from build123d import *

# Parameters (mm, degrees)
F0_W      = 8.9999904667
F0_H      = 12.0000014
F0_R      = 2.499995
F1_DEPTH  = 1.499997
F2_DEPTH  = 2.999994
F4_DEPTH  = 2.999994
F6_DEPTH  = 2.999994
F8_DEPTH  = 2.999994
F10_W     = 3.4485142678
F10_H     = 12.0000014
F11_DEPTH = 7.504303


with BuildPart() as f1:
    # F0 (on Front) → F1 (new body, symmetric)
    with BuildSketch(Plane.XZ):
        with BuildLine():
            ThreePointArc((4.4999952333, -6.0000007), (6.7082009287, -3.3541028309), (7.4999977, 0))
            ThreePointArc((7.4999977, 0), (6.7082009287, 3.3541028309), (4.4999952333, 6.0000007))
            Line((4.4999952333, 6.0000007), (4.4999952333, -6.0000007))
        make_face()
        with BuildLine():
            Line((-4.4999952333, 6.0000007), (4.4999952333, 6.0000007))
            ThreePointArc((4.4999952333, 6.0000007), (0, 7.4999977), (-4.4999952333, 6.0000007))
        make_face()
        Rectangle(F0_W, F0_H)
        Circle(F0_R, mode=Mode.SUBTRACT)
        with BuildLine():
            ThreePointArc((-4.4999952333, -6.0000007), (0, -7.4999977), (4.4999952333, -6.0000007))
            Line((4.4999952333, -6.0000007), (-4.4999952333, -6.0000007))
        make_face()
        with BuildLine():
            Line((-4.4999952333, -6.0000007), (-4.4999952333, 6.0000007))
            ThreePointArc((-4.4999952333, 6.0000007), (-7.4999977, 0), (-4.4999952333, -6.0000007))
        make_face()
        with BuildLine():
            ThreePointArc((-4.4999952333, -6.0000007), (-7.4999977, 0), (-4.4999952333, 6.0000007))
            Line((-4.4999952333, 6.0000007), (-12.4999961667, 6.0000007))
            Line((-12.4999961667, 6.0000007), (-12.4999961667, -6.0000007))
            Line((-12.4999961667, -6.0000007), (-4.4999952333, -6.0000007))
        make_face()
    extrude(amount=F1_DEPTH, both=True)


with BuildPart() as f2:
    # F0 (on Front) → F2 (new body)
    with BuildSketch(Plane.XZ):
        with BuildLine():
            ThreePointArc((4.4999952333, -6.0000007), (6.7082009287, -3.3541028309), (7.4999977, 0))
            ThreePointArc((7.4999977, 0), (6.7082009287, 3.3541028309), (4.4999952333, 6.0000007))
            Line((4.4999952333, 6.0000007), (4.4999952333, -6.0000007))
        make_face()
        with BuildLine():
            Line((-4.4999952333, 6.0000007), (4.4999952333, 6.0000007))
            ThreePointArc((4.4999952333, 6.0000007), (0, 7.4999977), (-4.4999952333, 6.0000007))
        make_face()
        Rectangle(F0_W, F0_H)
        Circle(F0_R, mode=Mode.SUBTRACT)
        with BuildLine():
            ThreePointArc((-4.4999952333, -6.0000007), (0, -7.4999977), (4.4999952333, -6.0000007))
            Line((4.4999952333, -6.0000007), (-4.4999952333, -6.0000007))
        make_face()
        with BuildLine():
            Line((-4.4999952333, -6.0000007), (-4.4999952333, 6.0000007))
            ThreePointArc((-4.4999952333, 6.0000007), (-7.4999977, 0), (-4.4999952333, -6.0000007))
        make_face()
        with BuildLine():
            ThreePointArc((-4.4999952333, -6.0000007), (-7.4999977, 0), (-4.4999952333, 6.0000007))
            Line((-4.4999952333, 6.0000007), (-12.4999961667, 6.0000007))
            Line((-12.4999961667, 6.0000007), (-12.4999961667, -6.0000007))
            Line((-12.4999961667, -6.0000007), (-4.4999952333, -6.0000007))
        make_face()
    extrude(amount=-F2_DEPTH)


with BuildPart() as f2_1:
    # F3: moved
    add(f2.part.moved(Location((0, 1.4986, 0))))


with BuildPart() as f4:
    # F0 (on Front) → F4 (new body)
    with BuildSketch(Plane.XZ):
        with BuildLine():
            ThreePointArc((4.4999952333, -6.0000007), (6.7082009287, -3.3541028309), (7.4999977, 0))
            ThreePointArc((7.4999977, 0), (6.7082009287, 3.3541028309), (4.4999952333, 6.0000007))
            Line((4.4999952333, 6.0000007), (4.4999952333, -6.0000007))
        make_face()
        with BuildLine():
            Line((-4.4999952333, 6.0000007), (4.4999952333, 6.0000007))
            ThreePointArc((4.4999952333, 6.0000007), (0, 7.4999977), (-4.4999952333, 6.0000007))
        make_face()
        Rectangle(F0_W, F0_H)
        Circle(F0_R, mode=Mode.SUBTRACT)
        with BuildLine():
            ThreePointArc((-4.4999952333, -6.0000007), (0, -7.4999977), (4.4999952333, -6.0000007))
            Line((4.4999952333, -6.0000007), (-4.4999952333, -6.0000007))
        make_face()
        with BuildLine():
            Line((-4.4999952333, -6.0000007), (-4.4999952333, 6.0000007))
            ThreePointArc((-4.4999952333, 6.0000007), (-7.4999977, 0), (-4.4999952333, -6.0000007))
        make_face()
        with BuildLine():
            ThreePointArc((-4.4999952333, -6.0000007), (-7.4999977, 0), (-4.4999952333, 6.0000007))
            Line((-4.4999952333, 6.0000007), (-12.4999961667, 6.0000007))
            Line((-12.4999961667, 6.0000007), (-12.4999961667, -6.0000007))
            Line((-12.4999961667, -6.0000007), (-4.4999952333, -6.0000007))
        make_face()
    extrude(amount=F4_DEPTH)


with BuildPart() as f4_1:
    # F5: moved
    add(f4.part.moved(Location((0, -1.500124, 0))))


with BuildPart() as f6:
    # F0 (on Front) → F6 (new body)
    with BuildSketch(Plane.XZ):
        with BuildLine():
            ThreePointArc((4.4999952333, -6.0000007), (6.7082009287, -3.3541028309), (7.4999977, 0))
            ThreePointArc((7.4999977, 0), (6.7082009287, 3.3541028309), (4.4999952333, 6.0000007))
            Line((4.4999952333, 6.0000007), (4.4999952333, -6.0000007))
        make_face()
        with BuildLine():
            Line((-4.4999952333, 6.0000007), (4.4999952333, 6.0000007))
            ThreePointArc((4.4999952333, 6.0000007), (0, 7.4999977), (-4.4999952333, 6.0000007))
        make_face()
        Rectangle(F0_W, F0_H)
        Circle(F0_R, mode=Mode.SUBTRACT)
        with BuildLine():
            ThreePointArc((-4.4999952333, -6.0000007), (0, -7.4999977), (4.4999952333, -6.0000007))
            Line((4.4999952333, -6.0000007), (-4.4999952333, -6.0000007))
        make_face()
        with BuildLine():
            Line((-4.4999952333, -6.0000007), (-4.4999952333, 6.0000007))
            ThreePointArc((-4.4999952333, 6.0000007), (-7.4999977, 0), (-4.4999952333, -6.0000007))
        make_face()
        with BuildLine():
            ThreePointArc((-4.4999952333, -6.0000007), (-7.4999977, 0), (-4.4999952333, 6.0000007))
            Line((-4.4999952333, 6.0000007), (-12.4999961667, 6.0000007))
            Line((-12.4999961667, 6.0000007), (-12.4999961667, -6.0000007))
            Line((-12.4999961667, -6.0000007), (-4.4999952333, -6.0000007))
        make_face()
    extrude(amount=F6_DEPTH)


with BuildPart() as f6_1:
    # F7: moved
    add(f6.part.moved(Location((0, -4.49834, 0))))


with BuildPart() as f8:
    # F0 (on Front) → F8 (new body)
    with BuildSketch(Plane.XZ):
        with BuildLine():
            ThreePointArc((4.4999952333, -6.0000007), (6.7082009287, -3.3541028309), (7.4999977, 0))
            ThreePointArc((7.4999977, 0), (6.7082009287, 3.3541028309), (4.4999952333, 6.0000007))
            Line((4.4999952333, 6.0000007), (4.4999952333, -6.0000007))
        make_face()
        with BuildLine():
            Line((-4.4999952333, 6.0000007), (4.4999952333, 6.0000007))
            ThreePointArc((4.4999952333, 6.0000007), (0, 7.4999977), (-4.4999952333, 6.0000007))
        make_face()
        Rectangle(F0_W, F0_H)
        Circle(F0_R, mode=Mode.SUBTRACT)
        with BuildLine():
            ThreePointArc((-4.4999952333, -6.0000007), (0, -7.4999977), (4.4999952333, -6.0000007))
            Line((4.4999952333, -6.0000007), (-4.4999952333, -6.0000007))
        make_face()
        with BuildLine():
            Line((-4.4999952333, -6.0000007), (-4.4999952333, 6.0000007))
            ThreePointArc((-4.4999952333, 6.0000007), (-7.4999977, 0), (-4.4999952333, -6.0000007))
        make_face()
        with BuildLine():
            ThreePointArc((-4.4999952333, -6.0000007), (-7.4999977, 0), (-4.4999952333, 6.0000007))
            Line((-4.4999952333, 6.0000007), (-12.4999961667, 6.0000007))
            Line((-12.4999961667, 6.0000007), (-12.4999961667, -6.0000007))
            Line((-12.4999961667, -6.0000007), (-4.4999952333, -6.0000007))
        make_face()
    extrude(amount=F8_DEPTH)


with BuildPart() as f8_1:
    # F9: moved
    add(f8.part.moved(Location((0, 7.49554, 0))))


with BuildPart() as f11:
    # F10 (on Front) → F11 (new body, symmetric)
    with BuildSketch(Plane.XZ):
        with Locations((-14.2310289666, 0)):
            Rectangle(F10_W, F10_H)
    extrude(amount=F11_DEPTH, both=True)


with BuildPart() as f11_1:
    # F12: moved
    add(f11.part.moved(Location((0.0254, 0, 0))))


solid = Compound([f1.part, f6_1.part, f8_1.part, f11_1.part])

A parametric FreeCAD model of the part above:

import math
import FreeCAD as App
import Part
import Sketcher
Q = App.Units.Quantity


def add_polygon(sketch, points):
    """Adds a closed chain of lines whose ends are joined by coincident constraints."""
    first, n = sketch.GeometryCount, len(points)
    for a, b in zip(points, points[1:] + points[:1]):
        sketch.addGeometry(Part.LineSegment(App.Vector(*a, 0), App.Vector(*b, 0)), False)
    for i in range(n):
        sketch.addConstraint(Sketcher.Constraint("Coincident", first + i, 2, first + (i + 1) % n, 1))

doc = App.newDocument("Part")
body = doc.addObject("PartDesign::Body", "Body")

# Sketch on XZ plane
sketch1 = body.newObject("Sketcher::SketchObject", "Sketch")
sketch1.AttachmentSupport = (doc.getObject("XZ_Plane"), [""])
sketch1.MapMode = "FlatFace"
sketch1.addGeometry(Part.ArcOfCircle(Part.Circle(App.Vector(0, 0, 0), App.Vector(0, 0, 1), 7.499998), math.radians(-53.130135), math.radians(0)), False)
sketch1.addGeometry(Part.ArcOfCircle(Part.Circle(App.Vector(0, 0, 0), App.Vector(0, 0, 1), 7.499998), math.radians(0), math.radians(53.130135)), False)
sketch1.addGeometry(Part.ArcOfCircle(Part.Circle(App.Vector(0, 0, 0), App.Vector(0, 0, 1), 7.499998), math.radians(53.130135), math.radians(126.869865)), False)
sketch1.addGeometry(Part.LineSegment(App.Vector(-4.499995, 6.000001, 0), App.Vector(-12.499996, 6.000001, 0)), False)
sketch1.addGeometry(Part.LineSegment(App.Vector(-12.499996, 6.000001, 0), App.Vector(-12.499996, -6.000001, 0)), False)
sketch1.addGeometry(Part.LineSegment(App.Vector(-12.499996, -6.000001, 0), App.Vector(-4.499995, -6.000001, 0)), False)
sketch1.addGeometry(Part.ArcOfCircle(Part.Circle(App.Vector(0, 0, 0), App.Vector(0, 0, 1), 7.499998), math.radians(-126.869865), math.radians(-53.130135)), False)
sketch1.addGeometry(Part.Circle(App.Vector(0, 0, 0), App.Vector(0, 0, 1), 2.499995), False)
sketch1.addConstraint(Sketcher.Constraint("Tangent", 0, 2, 1, 1))
sketch1.addConstraint(Sketcher.Constraint("Tangent", 1, 2, 2, 1))
sketch1.addConstraint(Sketcher.Constraint("Coincident", 2, 2, 3, 1))
sketch1.addConstraint(Sketcher.Constraint("Coincident", 3, 2, 4, 1))
sketch1.addConstraint(Sketcher.Constraint("Coincident", 4, 2, 5, 1))
sketch1.addConstraint(Sketcher.Constraint("Coincident", 5, 2, 6, 1))
sketch1.addConstraint(Sketcher.Constraint("Tangent", 6, 2, 0, 1))
sketch1.addConstraint(Sketcher.Constraint("Horizontal", 3))
sketch1.addConstraint(Sketcher.Constraint("Vertical", 4))
sketch1.addConstraint(Sketcher.Constraint("Horizontal", 5))
sketch1.addConstraint(Sketcher.Constraint("Coincident", 0, 3, -1, 1))
sketch1.addConstraint(Sketcher.Constraint("Coincident", 2, 3, -1, 1))
sketch1.addConstraint(Sketcher.Constraint("Coincident", 7, 3, -1, 1))
sketch1.addConstraint(Sketcher.Constraint("Equal", 2, 6))
sketch1.addConstraint(Sketcher.Constraint("PointOnObject", 0, 2, -1))
sketch1.addConstraint(Sketcher.Constraint("Horizontal", 1, 2, 2, 2))
sketch1.addConstraint(Sketcher.Constraint("Horizontal", 5, 2, 6, 2))
sketch1.addConstraint(Sketcher.Constraint("Vertical", 2, 2, 5, 2))
sketch1.addConstraint(Sketcher.Constraint("DistanceX", 3, 2, 3, 1, Q("8.000001 mm")))
sketch1.addConstraint(Sketcher.Constraint("DistanceY", 4, 2, 4, 1, Q("12.000001 mm")))
sketch1.addConstraint(Sketcher.Constraint("Diameter", 7, Q("4.99999 mm")))
sketch1.addConstraint(Sketcher.Constraint("Radius", 0, Q("7.499998 mm")))
pad1 = body.newObject("PartDesign::Pad", "Pad")
pad1.Profile = sketch1
pad1.Length = 2.999994
pad1.Midplane = True
body2 = doc.addObject("PartDesign::Body", "Body001")

# Sketch on XZ plane
sketch2 = body2.newObject("Sketcher::SketchObject", "Sketch001")
sketch2.AttachmentSupport = (doc.getObject("XZ_Plane001"), [""])
sketch2.MapMode = "FlatFace"
sketch2.addGeometry(Part.ArcOfCircle(Part.Circle(App.Vector(0, 0, 0), App.Vector(0, 0, 1), 7.499998), math.radians(-53.130135), math.radians(0)), False)
sketch2.addGeometry(Part.ArcOfCircle(Part.Circle(App.Vector(0, 0, 0), App.Vector(0, 0, 1), 7.499998), math.radians(0), math.radians(53.130135)), False)
sketch2.addGeometry(Part.ArcOfCircle(Part.Circle(App.Vector(0, 0, 0), App.Vector(0, 0, 1), 7.499998), math.radians(53.130135), math.radians(126.869865)), False)
sketch2.addGeometry(Part.LineSegment(App.Vector(-4.499995, 6.000001, 0), App.Vector(-12.499996, 6.000001, 0)), False)
sketch2.addGeometry(Part.LineSegment(App.Vector(-12.499996, 6.000001, 0), App.Vector(-12.499996, -6.000001, 0)), False)
sketch2.addGeometry(Part.LineSegment(App.Vector(-12.499996, -6.000001, 0), App.Vector(-4.499995, -6.000001, 0)), False)
sketch2.addGeometry(Part.ArcOfCircle(Part.Circle(App.Vector(0, 0, 0), App.Vector(0, 0, 1), 7.499998), math.radians(-126.869865), math.radians(-53.130135)), False)
sketch2.addGeometry(Part.Circle(App.Vector(0, 0, 0), App.Vector(0, 0, 1), 2.499995), False)
sketch2.addConstraint(Sketcher.Constraint("Tangent", 0, 2, 1, 1))
sketch2.addConstraint(Sketcher.Constraint("Tangent", 1, 2, 2, 1))
sketch2.addConstraint(Sketcher.Constraint("Coincident", 2, 2, 3, 1))
sketch2.addConstraint(Sketcher.Constraint("Coincident", 3, 2, 4, 1))
sketch2.addConstraint(Sketcher.Constraint("Coincident", 4, 2, 5, 1))
sketch2.addConstraint(Sketcher.Constraint("Coincident", 5, 2, 6, 1))
sketch2.addConstraint(Sketcher.Constraint("Tangent", 6, 2, 0, 1))
sketch2.addConstraint(Sketcher.Constraint("Horizontal", 3))
sketch2.addConstraint(Sketcher.Constraint("Vertical", 4))
sketch2.addConstraint(Sketcher.Constraint("Horizontal", 5))
sketch2.addConstraint(Sketcher.Constraint("Coincident", 0, 3, -1, 1))
sketch2.addConstraint(Sketcher.Constraint("Coincident", 2, 3, -1, 1))
sketch2.addConstraint(Sketcher.Constraint("Coincident", 7, 3, -1, 1))
sketch2.addConstraint(Sketcher.Constraint("Equal", 2, 6))
sketch2.addConstraint(Sketcher.Constraint("PointOnObject", 0, 2, -1))
sketch2.addConstraint(Sketcher.Constraint("Horizontal", 1, 2, 2, 2))
sketch2.addConstraint(Sketcher.Constraint("Horizontal", 5, 2, 6, 2))
sketch2.addConstraint(Sketcher.Constraint("Vertical", 2, 2, 5, 2))
sketch2.addConstraint(Sketcher.Constraint("DistanceX", 3, 2, 3, 1, Q("8.000001 mm")))
sketch2.addConstraint(Sketcher.Constraint("DistanceY", 4, 2, 4, 1, Q("12.000001 mm")))
sketch2.addConstraint(Sketcher.Constraint("Diameter", 7, Q("4.99999 mm")))
sketch2.addConstraint(Sketcher.Constraint("Radius", 0, Q("7.499998 mm")))
pad2 = body2.newObject("PartDesign::Pad", "Pad001")
pad2.Profile = sketch2
pad2.Length = 2.999994
pad2.Reversed = True
body3 = doc.addObject("PartDesign::Body", "Body002")
doc.recompute()

body2.Placement = App.Placement(App.Vector(0, 1.4986, 0), App.Rotation(App.Vector(0, 0, 1), 0))
boolean = body3.newObject("PartDesign::Boolean", "Boolean")
boolean.Type = "Fuse"
boolean.addObjects([body2])
body4 = doc.addObject("PartDesign::Body", "Body003")

# Sketch on XZ plane
sketch3 = body4.newObject("Sketcher::SketchObject", "Sketch002")
sketch3.AttachmentSupport = (doc.getObject("XZ_Plane003"), [""])
sketch3.MapMode = "FlatFace"
sketch3.addGeometry(Part.ArcOfCircle(Part.Circle(App.Vector(0, 0, 0), App.Vector(0, 0, 1), 7.499998), math.radians(-53.130135), math.radians(0)), False)
sketch3.addGeometry(Part.ArcOfCircle(Part.Circle(App.Vector(0, 0, 0), App.Vector(0, 0, 1), 7.499998), math.radians(0), math.radians(53.130135)), False)
sketch3.addGeometry(Part.ArcOfCircle(Part.Circle(App.Vector(0, 0, 0), App.Vector(0, 0, 1), 7.499998), math.radians(53.130135), math.radians(126.869865)), False)
sketch3.addGeometry(Part.LineSegment(App.Vector(-4.499995, 6.000001, 0), App.Vector(-12.499996, 6.000001, 0)), False)
sketch3.addGeometry(Part.LineSegment(App.Vector(-12.499996, 6.000001, 0), App.Vector(-12.499996, -6.000001, 0)), False)
sketch3.addGeometry(Part.LineSegment(App.Vector(-12.499996, -6.000001, 0), App.Vector(-4.499995, -6.000001, 0)), False)
sketch3.addGeometry(Part.ArcOfCircle(Part.Circle(App.Vector(0, 0, 0), App.Vector(0, 0, 1), 7.499998), math.radians(-126.869865), math.radians(-53.130135)), False)
sketch3.addGeometry(Part.Circle(App.Vector(0, 0, 0), App.Vector(0, 0, 1), 2.499995), False)
sketch3.addConstraint(Sketcher.Constraint("Tangent", 0, 2, 1, 1))
sketch3.addConstraint(Sketcher.Constraint("Tangent", 1, 2, 2, 1))
sketch3.addConstraint(Sketcher.Constraint("Coincident", 2, 2, 3, 1))
sketch3.addConstraint(Sketcher.Constraint("Coincident", 3, 2, 4, 1))
sketch3.addConstraint(Sketcher.Constraint("Coincident", 4, 2, 5, 1))
sketch3.addConstraint(Sketcher.Constraint("Coincident", 5, 2, 6, 1))
sketch3.addConstraint(Sketcher.Constraint("Tangent", 6, 2, 0, 1))
sketch3.addConstraint(Sketcher.Constraint("Horizontal", 3))
sketch3.addConstraint(Sketcher.Constraint("Vertical", 4))
sketch3.addConstraint(Sketcher.Constraint("Horizontal", 5))
sketch3.addConstraint(Sketcher.Constraint("Coincident", 0, 3, -1, 1))
sketch3.addConstraint(Sketcher.Constraint("Coincident", 2, 3, -1, 1))
sketch3.addConstraint(Sketcher.Constraint("Coincident", 7, 3, -1, 1))
sketch3.addConstraint(Sketcher.Constraint("Equal", 2, 6))
sketch3.addConstraint(Sketcher.Constraint("PointOnObject", 0, 2, -1))
sketch3.addConstraint(Sketcher.Constraint("Horizontal", 1, 2, 2, 2))
sketch3.addConstraint(Sketcher.Constraint("Horizontal", 5, 2, 6, 2))
sketch3.addConstraint(Sketcher.Constraint("Vertical", 2, 2, 5, 2))
sketch3.addConstraint(Sketcher.Constraint("DistanceX", 3, 2, 3, 1, Q("8.000001 mm")))
sketch3.addConstraint(Sketcher.Constraint("DistanceY", 4, 2, 4, 1, Q("12.000001 mm")))
sketch3.addConstraint(Sketcher.Constraint("Diameter", 7, Q("4.99999 mm")))
sketch3.addConstraint(Sketcher.Constraint("Radius", 0, Q("7.499998 mm")))
pad3 = body4.newObject("PartDesign::Pad", "Pad002")
pad3.Profile = sketch3
pad3.Length = 2.999994
body5 = doc.addObject("PartDesign::Body", "Body004")
doc.recompute()

body4.Placement = App.Placement(App.Vector(0, -1.500124, 0), App.Rotation(App.Vector(0, 0, 1), 0))
boolean2 = body5.newObject("PartDesign::Boolean", "Boolean001")
boolean2.Type = "Fuse"
boolean2.addObjects([body4])
body6 = doc.addObject("PartDesign::Body", "Body005")

# Sketch on XZ plane
sketch4 = body6.newObject("Sketcher::SketchObject", "Sketch003")
sketch4.AttachmentSupport = (doc.getObject("XZ_Plane005"), [""])
sketch4.MapMode = "FlatFace"
sketch4.addGeometry(Part.ArcOfCircle(Part.Circle(App.Vector(0, 0, 0), App.Vector(0, 0, 1), 7.499998), math.radians(-53.130135), math.radians(0)), False)
sketch4.addGeometry(Part.ArcOfCircle(Part.Circle(App.Vector(0, 0, 0), App.Vector(0, 0, 1), 7.499998), math.radians(0), math.radians(53.130135)), False)
sketch4.addGeometry(Part.ArcOfCircle(Part.Circle(App.Vector(0, 0, 0), App.Vector(0, 0, 1), 7.499998), math.radians(53.130135), math.radians(126.869865)), False)
sketch4.addGeometry(Part.LineSegment(App.Vector(-4.499995, 6.000001, 0), App.Vector(-12.499996, 6.000001, 0)), False)
sketch4.addGeometry(Part.LineSegment(App.Vector(-12.499996, 6.000001, 0), App.Vector(-12.499996, -6.000001, 0)), False)
sketch4.addGeometry(Part.LineSegment(App.Vector(-12.499996, -6.000001, 0), App.Vector(-4.499995, -6.000001, 0)), False)
sketch4.addGeometry(Part.ArcOfCircle(Part.Circle(App.Vector(0, 0, 0), App.Vector(0, 0, 1), 7.499998), math.radians(-126.869865), math.radians(-53.130135)), False)
sketch4.addGeometry(Part.Circle(App.Vector(0, 0, 0), App.Vector(0, 0, 1), 2.499995), False)
sketch4.addConstraint(Sketcher.Constraint("Tangent", 0, 2, 1, 1))
sketch4.addConstraint(Sketcher.Constraint("Tangent", 1, 2, 2, 1))
sketch4.addConstraint(Sketcher.Constraint("Coincident", 2, 2, 3, 1))
sketch4.addConstraint(Sketcher.Constraint("Coincident", 3, 2, 4, 1))
sketch4.addConstraint(Sketcher.Constraint("Coincident", 4, 2, 5, 1))
sketch4.addConstraint(Sketcher.Constraint("Coincident", 5, 2, 6, 1))
sketch4.addConstraint(Sketcher.Constraint("Tangent", 6, 2, 0, 1))
sketch4.addConstraint(Sketcher.Constraint("Horizontal", 3))
sketch4.addConstraint(Sketcher.Constraint("Vertical", 4))
sketch4.addConstraint(Sketcher.Constraint("Horizontal", 5))
sketch4.addConstraint(Sketcher.Constraint("Coincident", 0, 3, -1, 1))
sketch4.addConstraint(Sketcher.Constraint("Coincident", 2, 3, -1, 1))
sketch4.addConstraint(Sketcher.Constraint("Coincident", 7, 3, -1, 1))
sketch4.addConstraint(Sketcher.Constraint("Equal", 2, 6))
sketch4.addConstraint(Sketcher.Constraint("PointOnObject", 0, 2, -1))
sketch4.addConstraint(Sketcher.Constraint("Horizontal", 1, 2, 2, 2))
sketch4.addConstraint(Sketcher.Constraint("Horizontal", 5, 2, 6, 2))
sketch4.addConstraint(Sketcher.Constraint("Vertical", 2, 2, 5, 2))
sketch4.addConstraint(Sketcher.Constraint("DistanceX", 3, 2, 3, 1, Q("8.000001 mm")))
sketch4.addConstraint(Sketcher.Constraint("DistanceY", 4, 2, 4, 1, Q("12.000001 mm")))
sketch4.addConstraint(Sketcher.Constraint("Diameter", 7, Q("4.99999 mm")))
sketch4.addConstraint(Sketcher.Constraint("Radius", 0, Q("7.499998 mm")))
pad4 = body6.newObject("PartDesign::Pad", "Pad003")
pad4.Profile = sketch4
pad4.Length = 2.999994
body7 = doc.addObject("PartDesign::Body", "Body006")
doc.recompute()

body6.Placement = App.Placement(App.Vector(0, -4.49834, 0), App.Rotation(App.Vector(0, 0, 1), 0))
boolean3 = body7.newObject("PartDesign::Boolean", "Boolean002")
boolean3.Type = "Fuse"
boolean3.addObjects([body6])
body8 = doc.addObject("PartDesign::Body", "Body007")

# Sketch on XZ plane
sketch5 = body8.newObject("Sketcher::SketchObject", "Sketch004")
sketch5.AttachmentSupport = (doc.getObject("XZ_Plane007"), [""])
sketch5.MapMode = "FlatFace"
sketch5.addGeometry(Part.ArcOfCircle(Part.Circle(App.Vector(0, 0, 0), App.Vector(0, 0, 1), 7.499998), math.radians(-53.130135), math.radians(0)), False)
sketch5.addGeometry(Part.ArcOfCircle(Part.Circle(App.Vector(0, 0, 0), App.Vector(0, 0, 1), 7.499998), math.radians(0), math.radians(53.130135)), False)
sketch5.addGeometry(Part.ArcOfCircle(Part.Circle(App.Vector(0, 0, 0), App.Vector(0, 0, 1), 7.499998), math.radians(53.130135), math.radians(126.869865)), False)
sketch5.addGeometry(Part.LineSegment(App.Vector(-4.499995, 6.000001, 0), App.Vector(-12.499996, 6.000001, 0)), False)
sketch5.addGeometry(Part.LineSegment(App.Vector(-12.499996, 6.000001, 0), App.Vector(-12.499996, -6.000001, 0)), False)
sketch5.addGeometry(Part.LineSegment(App.Vector(-12.499996, -6.000001, 0), App.Vector(-4.499995, -6.000001, 0)), False)
sketch5.addGeometry(Part.ArcOfCircle(Part.Circle(App.Vector(0, 0, 0), App.Vector(0, 0, 1), 7.499998), math.radians(-126.869865), math.radians(-53.130135)), False)
sketch5.addGeometry(Part.Circle(App.Vector(0, 0, 0), App.Vector(0, 0, 1), 2.499995), False)
sketch5.addConstraint(Sketcher.Constraint("Tangent", 0, 2, 1, 1))
sketch5.addConstraint(Sketcher.Constraint("Tangent", 1, 2, 2, 1))
sketch5.addConstraint(Sketcher.Constraint("Coincident", 2, 2, 3, 1))
sketch5.addConstraint(Sketcher.Constraint("Coincident", 3, 2, 4, 1))
sketch5.addConstraint(Sketcher.Constraint("Coincident", 4, 2, 5, 1))
sketch5.addConstraint(Sketcher.Constraint("Coincident", 5, 2, 6, 1))
sketch5.addConstraint(Sketcher.Constraint("Tangent", 6, 2, 0, 1))
sketch5.addConstraint(Sketcher.Constraint("Horizontal", 3))
sketch5.addConstraint(Sketcher.Constraint("Vertical", 4))
sketch5.addConstraint(Sketcher.Constraint("Horizontal", 5))
sketch5.addConstraint(Sketcher.Constraint("Coincident", 0, 3, -1, 1))
sketch5.addConstraint(Sketcher.Constraint("Coincident", 2, 3, -1, 1))
sketch5.addConstraint(Sketcher.Constraint("Coincident", 7, 3, -1, 1))
sketch5.addConstraint(Sketcher.Constraint("Equal", 2, 6))
sketch5.addConstraint(Sketcher.Constraint("PointOnObject", 0, 2, -1))
sketch5.addConstraint(Sketcher.Constraint("Horizontal", 1, 2, 2, 2))
sketch5.addConstraint(Sketcher.Constraint("Horizontal", 5, 2, 6, 2))
sketch5.addConstraint(Sketcher.Constraint("Vertical", 2, 2, 5, 2))
sketch5.addConstraint(Sketcher.Constraint("DistanceX", 3, 2, 3, 1, Q("8.000001 mm")))
sketch5.addConstraint(Sketcher.Constraint("DistanceY", 4, 2, 4, 1, Q("12.000001 mm")))
sketch5.addConstraint(Sketcher.Constraint("Diameter", 7, Q("4.99999 mm")))
sketch5.addConstraint(Sketcher.Constraint("Radius", 0, Q("7.499998 mm")))
pad5 = body8.newObject("PartDesign::Pad", "Pad004")
pad5.Profile = sketch5
pad5.Length = 2.999994
body9 = doc.addObject("PartDesign::Body", "Body008")
doc.recompute()

body8.Placement = App.Placement(App.Vector(0, 7.49554, 0), App.Rotation(App.Vector(0, 0, 1), 0))
boolean4 = body9.newObject("PartDesign::Boolean", "Boolean003")
boolean4.Type = "Fuse"
boolean4.addObjects([body8])
body10 = doc.addObject("PartDesign::Body", "Body009")

# Sketch on XZ plane
sketch6 = body10.newObject("Sketcher::SketchObject", "Sketch005")
sketch6.AttachmentSupport = (doc.getObject("XZ_Plane009"), [""])
sketch6.MapMode = "FlatFace"
add_polygon(sketch6, [(-15.955286, 6.000001), (-15.955286, -6.000001), (-12.506772, -6.000001), (-12.506772, 6.000001)])  # lines 0-3
sketch6.addConstraint(Sketcher.Constraint("Vertical", 0))
sketch6.addConstraint(Sketcher.Constraint("Horizontal", 1))
sketch6.addConstraint(Sketcher.Constraint("Vertical", 2))
sketch6.addConstraint(Sketcher.Constraint("Horizontal", 3))
sketch6.addConstraint(Sketcher.Constraint("DistanceY", 0, 2, 0, 1, Q("12.000001 mm")))
sketch6.addConstraint(Sketcher.Constraint("DistanceY", 0, 2, -1, 1, Q("6.000001 mm")))
sketch6.addConstraint(Sketcher.Constraint("DistanceX", 1, 1, 1, 2, Q("3.448514 mm")))
sketch6.addConstraint(Sketcher.Constraint("DistanceX", 1, 2, -1, 1, Q("12.506772 mm")))
pad6 = body10.newObject("PartDesign::Pad", "Pad005")
pad6.Profile = sketch6
pad6.Length = 15.008606
pad6.Midplane = True
body11 = doc.addObject("PartDesign::Body", "Body010")
doc.recompute()

body10.Placement = App.Placement(App.Vector(0.0254, 0, 0), App.Rotation(App.Vector(0, 0, 1), 0))
boolean5 = body11.newObject("PartDesign::Boolean", "Boolean004")
boolean5.Type = "Fuse"
boolean5.addObjects([body10])
body3.Visibility = False
body5.Visibility = False

doc.recompute()
